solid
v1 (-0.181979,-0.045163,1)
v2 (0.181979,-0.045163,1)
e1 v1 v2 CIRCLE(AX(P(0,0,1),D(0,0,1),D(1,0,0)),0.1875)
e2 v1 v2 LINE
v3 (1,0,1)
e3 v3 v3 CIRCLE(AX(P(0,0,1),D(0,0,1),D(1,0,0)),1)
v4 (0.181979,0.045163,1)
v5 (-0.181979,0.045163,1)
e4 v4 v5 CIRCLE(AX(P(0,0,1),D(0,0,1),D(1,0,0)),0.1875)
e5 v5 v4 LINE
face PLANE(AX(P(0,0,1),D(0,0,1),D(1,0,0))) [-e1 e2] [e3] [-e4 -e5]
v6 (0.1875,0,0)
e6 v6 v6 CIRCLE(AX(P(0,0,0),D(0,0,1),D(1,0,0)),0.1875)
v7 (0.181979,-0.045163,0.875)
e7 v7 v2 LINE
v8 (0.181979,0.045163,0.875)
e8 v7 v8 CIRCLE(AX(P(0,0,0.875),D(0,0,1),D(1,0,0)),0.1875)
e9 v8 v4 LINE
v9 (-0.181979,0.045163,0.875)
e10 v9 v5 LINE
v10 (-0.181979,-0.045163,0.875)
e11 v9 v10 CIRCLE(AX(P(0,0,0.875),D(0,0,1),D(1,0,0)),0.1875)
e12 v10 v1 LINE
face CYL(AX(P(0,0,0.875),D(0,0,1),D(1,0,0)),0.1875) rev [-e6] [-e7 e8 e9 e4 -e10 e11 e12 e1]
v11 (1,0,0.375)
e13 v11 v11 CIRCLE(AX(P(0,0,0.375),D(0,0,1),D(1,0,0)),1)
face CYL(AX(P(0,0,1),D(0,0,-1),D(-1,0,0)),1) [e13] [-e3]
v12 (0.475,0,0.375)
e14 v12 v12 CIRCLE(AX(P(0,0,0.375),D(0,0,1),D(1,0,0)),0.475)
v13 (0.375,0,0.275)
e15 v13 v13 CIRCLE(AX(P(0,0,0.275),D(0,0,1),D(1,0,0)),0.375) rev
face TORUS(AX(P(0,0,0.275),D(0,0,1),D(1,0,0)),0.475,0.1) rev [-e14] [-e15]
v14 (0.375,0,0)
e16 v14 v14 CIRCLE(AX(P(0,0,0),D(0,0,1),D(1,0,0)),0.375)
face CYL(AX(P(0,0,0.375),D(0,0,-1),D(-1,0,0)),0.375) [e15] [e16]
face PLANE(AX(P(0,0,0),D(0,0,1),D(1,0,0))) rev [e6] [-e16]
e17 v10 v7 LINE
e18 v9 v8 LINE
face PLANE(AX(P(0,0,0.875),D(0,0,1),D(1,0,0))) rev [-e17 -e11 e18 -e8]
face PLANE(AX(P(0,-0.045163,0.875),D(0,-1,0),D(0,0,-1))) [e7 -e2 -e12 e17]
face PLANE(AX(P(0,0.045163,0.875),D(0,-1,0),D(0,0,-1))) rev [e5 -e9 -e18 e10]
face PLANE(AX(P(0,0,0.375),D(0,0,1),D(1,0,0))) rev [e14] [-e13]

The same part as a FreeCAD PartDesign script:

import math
import FreeCAD as App
import Part
import Sketcher
from FreeCAD import Vector


def edges_at(feature, points):
    """Names of the edges that pass closest to the given points."""
    edges = feature.Shape.Edges
    near = lambda p: min(range(len(edges)), key=lambda i: edges[i].distToShape(Part.Vertex(*p))[0])
    return sorted({f"Edge{near(p) + 1}" for p in points})

doc = App.newDocument("Part")
body = doc.addObject("PartDesign::Body", "Body")

# Sketch on XY plane
sketch1 = body.newObject("Sketcher::SketchObject", "Sketch")
sketch1.AttachmentSupport = (doc.getObject("XY_Plane"), [""])
sketch1.MapMode = "FlatFace"
sketch1.addGeometry(Part.Circle(Vector(0, 0, 0), Vector(0, 0, 1), 1), False)
sketch1.addConstraint(Sketcher.Constraint("Coincident", 0, 3, -1, 1))
sketch1.addConstraint(Sketcher.Constraint("Diameter", 0, 2.0))
pad1 = body.newObject("PartDesign::Pad", "Pad")
pad1.Profile = sketch1
pad1.Length = 1

# Sketch on XY plane
sketch2 = body.newObject("Sketcher::SketchObject", "Sketch001")
sketch2.AttachmentSupport = (doc.getObject("XY_Plane"), [""])
sketch2.MapMode = "FlatFace"
sketch2.addGeometry(Part.Circle(Vector(0, 0, 0), Vector(0, 0, 1), 1), False)
sketch2.addGeometry(Part.Circle(Vector(0, 0, 0), Vector(0, 0, 1), 0.38), False)
sketch2.addConstraint(Sketcher.Constraint("Coincident", 0, 3, -1, 1))
sketch2.addConstraint(Sketcher.Constraint("Coincident", 1, 3, -1, 1))
sketch2.addConstraint(Sketcher.Constraint("Diameter", 0, 2.0))
sketch2.addConstraint(Sketcher.Constraint("Diameter", 1, 0.75))
pocket1 = body.newObject("PartDesign::Pocket", "Pocket")
pocket1.Profile = sketch2
pocket1.Length = 0.375
pocket1.Reversed = True
doc.recompute()

fillet = body.newObject("PartDesign::Fillet", "Fillet")
fillet.Base = (pocket1, edges_at(pocket1, [(-0.375, 0, 0.375)]))
fillet.Radius = 0.1

# Sketch on XY plane
sketch3 = body.newObject("Sketcher::SketchObject", "Sketch002")
sketch3.AttachmentSupport = (doc.getObject("XY_Plane"), [""])
sketch3.MapMode = "FlatFace"
sketch3.AttachmentOffset = App.Placement(Vector(0, 0, 1), App.Rotation())
sketch3.addGeometry(Part.LineSegment(Vector(-0.18, 0.05, 0), Vector(0.18, 0.05, 0)), False)
sketch3.addGeometry(Part.ArcOfCircle(Part.Circle(Vector(0, 0, 0), Vector(0, 0, 1), 0.19), math.radians(14), math.radians(166)), False)
sketch3.addGeometry(Part.LineSegment(Vector(0.18, -0.05, 0), Vector(-0.18, -0.05, 0)), False)
sketch3.addGeometry(Part.ArcOfCircle(Part.Circle(Vector(0, 0, 0), Vector(0, 0, 1), 0.19), math.radians(-166), math.radians(-14)), False)
sketch3.addConstraint(Sketcher.Constraint("Coincident", 0, 1, 1, 2))
sketch3.addConstraint(Sketcher.Constraint("Coincident", 1, 1, 0, 2))
sketch3.addConstraint(Sketcher.Constraint("Coincident", 2, 1, 3, 2))
sketch3.addConstraint(Sketcher.Constraint("Coincident", 3, 1, 2, 2))
sketch3.addConstraint(Sketcher.Constraint("Horizontal", 0))
sketch3.addConstraint(Sketcher.Constraint("Horizontal", 2))
sketch3.addConstraint(Sketcher.Constraint("Coincident", 1, 3, -1, 1))
sketch3.addConstraint(Sketcher.Constraint("Coincident", 3, 3, -1, 1))
sketch3.addConstraint(Sketcher.Constraint("Equal", 1, 3))
sketch3.addConstraint(Sketcher.Constraint("Vertical", 1, 1, 2, 1))
sketch3.addConstraint(Sketcher.Constraint("Radius", 1, 0.1875))
sketch3.addConstraint(Sketcher.Constraint("DistanceX", 0, 1, 0, 2, 0.363959))
pocket2 = body.newObject("PartDesign::Pocket", "Pocket001")
pocket2.Profile = sketch3
pocket2.Length = 0.125

# Sketch on XY plane
sketch4 = body.newObject("Sketcher::SketchObject", "Sketch003")
sketch4.AttachmentSupport = (doc.getObject("XY_Plane"), [""])
sketch4.MapMode = "FlatFace"
sketch4.AttachmentOffset = App.Placement(Vector(0, 0, 0.875), App.Rotation())
sketch4.addGeometry(Part.Circle(Vector(0, 0, 0), Vector(0, 0, 1), 0.19), False)
sketch4.addConstraint(Sketcher.Constraint("Coincident", 0, 3, -1, 1))
sketch4.addConstraint(Sketcher.Constraint("Diameter", 0, 0.375))
pocket3 = body.newObject("PartDesign::Pocket", "Pocket002")
pocket3.Profile = sketch4
pocket3.Length = 0.875

doc.recompute()
